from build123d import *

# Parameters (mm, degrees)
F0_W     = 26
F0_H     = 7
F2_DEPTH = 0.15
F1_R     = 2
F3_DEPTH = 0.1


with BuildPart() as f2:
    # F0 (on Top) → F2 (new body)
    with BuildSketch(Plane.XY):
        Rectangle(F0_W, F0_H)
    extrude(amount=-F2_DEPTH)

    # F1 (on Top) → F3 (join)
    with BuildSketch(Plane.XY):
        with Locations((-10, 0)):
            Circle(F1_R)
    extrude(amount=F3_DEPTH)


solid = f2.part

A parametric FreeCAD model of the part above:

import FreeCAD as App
import Part
import Sketcher

doc = App.newDocument("Part")
body = doc.addObject("PartDesign::Body", "Body")

# Sketch on XY plane
sketch1 = doc.addObject("Sketcher::SketchObject", "Sketch")
body.addObject(sketch1)
sketch1.AttachmentSupport = (doc.XY_Plane, [""])
sketch1.MapMode = "FlatFace"
sketch1.addGeometry(Part.LineSegment(App.Vector(-13, 4, 0), App.Vector(-13, -4, 0)), False)
sketch1.addGeometry(Part.LineSegment(App.Vector(-13, -4, 0), App.Vector(13, -4, 0)), False)
sketch1.addGeometry(Part.LineSegment(App.Vector(13, -4, 0), App.Vector(13, 4, 0)), False)
sketch1.addGeometry(Part.LineSegment(App.Vector(13, 4, 0), App.Vector(-13, 4, 0)), False)
sketch1.addConstraint(Sketcher.Constraint("Coincident", 0, 2, 1, 1))
sketch1.addConstraint(Sketcher.Constraint("Coincident", 1, 2, 2, 1))
sketch1.addConstraint(Sketcher.Constraint("Coincident", 2, 2, 3, 1))
sketch1.addConstraint(Sketcher.Constraint("Coincident", 3, 2, 0, 1))
sketch1.addConstraint(Sketcher.Constraint("Vertical", 0))
sketch1.addConstraint(Sketcher.Constraint("Horizontal", 1))
sketch1.addConstraint(Sketcher.Constraint("Vertical", 2))
sketch1.addConstraint(Sketcher.Constraint("Horizontal", 3))
sketch1.addConstraint(Sketcher.Constraint("Symmetric", 0, 2, 2, 2, -1, 1))
sketch1.addConstraint(Sketcher.Constraint("DistanceX", 1, 1, 1, 2, 26.0))
sketch1.addConstraint(Sketcher.Constraint("DistanceY", 0, 2, 0, 1, 7.0))
pad1 = doc.addObject("PartDesign::Pad", "Pad")
body.addObject(pad1)
pad1.Profile = sketch1
pad1.Length = 0.15
pad1.Reversed = True

# Sketch on XY plane
sketch2 = doc.addObject("Sketcher::SketchObject", "Sketch001")
body.addObject(sketch2)
sketch2.AttachmentSupport = (doc.XY_Plane, [""])
sketch2.MapMode = "FlatFace"
sketch2.addGeometry(Part.Circle(App.Vector(-10, 0, 0), App.Vector(0, 0, 1), 2), False)
sketch2.addConstraint(Sketcher.Constraint("PointOnObject", 0, 3, -1))
sketch2.addConstraint(Sketcher.Constraint("Diameter", 0, 4.0))
sketch2.addConstraint(Sketcher.Constraint("DistanceX", 0, 3, -1, 1, 10.0))
pad2 = doc.addObject("PartDesign::Pad", "Pad001")
body.addObject(pad2)
pad2.Profile = sketch2
pad2.Length = 0.1

doc.recompute()
